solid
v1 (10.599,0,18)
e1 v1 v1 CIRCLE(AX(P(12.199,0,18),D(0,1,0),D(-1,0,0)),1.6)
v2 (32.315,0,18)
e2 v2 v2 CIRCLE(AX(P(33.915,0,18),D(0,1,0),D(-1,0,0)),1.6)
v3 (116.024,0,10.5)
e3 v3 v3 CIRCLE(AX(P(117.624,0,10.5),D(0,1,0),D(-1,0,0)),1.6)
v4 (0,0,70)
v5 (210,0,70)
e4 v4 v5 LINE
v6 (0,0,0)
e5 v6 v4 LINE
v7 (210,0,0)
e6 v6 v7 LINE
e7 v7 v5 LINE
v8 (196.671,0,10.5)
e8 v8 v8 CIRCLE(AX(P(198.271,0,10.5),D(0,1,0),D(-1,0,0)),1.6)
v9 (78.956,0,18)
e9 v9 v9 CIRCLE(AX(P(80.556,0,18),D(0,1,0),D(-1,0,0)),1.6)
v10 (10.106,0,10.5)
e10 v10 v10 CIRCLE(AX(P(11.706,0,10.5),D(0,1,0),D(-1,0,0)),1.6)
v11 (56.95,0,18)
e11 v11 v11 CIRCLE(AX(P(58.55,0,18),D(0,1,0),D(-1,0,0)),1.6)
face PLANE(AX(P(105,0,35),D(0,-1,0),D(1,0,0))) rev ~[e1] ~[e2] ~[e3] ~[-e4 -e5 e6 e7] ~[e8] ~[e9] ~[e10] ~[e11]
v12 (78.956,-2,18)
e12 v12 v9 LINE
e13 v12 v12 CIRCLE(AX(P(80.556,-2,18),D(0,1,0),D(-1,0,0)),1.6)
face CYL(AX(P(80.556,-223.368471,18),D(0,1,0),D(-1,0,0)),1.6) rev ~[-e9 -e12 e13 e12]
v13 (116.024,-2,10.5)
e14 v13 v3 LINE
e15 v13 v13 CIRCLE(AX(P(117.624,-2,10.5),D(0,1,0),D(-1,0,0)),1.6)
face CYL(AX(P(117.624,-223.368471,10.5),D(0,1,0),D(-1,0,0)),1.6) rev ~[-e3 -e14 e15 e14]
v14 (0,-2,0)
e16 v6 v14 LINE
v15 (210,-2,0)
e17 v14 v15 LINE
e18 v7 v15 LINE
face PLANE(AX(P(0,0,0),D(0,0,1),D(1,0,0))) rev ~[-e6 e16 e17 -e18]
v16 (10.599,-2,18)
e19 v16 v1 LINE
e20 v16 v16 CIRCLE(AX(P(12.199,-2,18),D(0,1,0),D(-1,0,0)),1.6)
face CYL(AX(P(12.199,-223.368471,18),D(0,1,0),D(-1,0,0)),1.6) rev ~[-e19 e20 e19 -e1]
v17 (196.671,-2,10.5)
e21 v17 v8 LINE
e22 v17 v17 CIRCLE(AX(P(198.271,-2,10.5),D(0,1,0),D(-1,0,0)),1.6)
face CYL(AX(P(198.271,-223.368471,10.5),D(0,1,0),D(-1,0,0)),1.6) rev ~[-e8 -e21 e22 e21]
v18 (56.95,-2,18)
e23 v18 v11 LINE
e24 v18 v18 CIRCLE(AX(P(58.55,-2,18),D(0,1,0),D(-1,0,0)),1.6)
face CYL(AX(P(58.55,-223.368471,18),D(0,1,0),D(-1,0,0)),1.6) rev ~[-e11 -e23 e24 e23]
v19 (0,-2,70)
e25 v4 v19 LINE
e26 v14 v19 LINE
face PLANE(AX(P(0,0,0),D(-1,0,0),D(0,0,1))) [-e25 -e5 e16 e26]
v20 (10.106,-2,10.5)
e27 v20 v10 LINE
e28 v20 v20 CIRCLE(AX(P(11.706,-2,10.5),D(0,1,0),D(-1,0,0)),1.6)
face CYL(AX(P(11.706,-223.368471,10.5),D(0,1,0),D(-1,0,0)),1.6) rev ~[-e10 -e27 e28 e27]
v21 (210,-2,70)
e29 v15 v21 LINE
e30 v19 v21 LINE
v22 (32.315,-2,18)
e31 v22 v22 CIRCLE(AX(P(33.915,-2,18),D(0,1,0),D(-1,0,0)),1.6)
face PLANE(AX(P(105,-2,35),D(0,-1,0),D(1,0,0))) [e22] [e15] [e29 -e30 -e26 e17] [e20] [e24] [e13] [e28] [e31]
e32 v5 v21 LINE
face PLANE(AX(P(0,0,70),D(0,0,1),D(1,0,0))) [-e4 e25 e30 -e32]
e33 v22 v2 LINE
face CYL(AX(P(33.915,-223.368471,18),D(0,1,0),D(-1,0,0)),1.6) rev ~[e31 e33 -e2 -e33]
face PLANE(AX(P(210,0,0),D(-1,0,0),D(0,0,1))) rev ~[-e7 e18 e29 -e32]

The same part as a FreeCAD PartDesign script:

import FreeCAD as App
import Part
import Sketcher


def add_polygon(sketch, points):
    """Adds a closed chain of lines whose ends are joined by coincident constraints."""
    first, n = sketch.GeometryCount, len(points)
    for a, b in zip(points, points[1:] + points[:1]):
        sketch.addGeometry(Part.LineSegment(App.Vector(*a, 0), App.Vector(*b, 0)), False)
    for i in range(n):
        sketch.addConstraint(Sketcher.Constraint("Coincident", first + i, 2, first + (i + 1) % n, 1))

doc = App.newDocument("Part")
body = doc.addObject("PartDesign::Body", "Body")

# Sketch on XZ plane
sketch1 = body.newObject("Sketcher::SketchObject", "Sketch")
sketch1.AttachmentSupport = (doc.getObject("XZ_Plane"), [""])
sketch1.MapMode = "FlatFace"
add_polygon(sketch1, [(0, 70), (0, 0), (210, 0), (210, 70)])  # lines 0-3
sketch1.addConstraint([
    Sketcher.Constraint("Vertical", 0),
    Sketcher.Constraint("Horizontal", 1),
    Sketcher.Constraint("Vertical", 2),
    Sketcher.Constraint("Horizontal", 3),
    Sketcher.Constraint("Coincident", 0, 2, -1, 1),
    Sketcher.Constraint("DistanceX", 1, 1, 1, 2, 210.0),
    Sketcher.Constraint("DistanceY", 0, 2, 0, 1, 70.0),
])
pad1 = body.newObject("PartDesign::Pad", "Pad")
pad1.Profile = sketch1
pad1.Length = 2

# Sketch on XZ plane
sketch2 = body.newObject("Sketcher::SketchObject", "Sketch001")
sketch2.AttachmentSupport = (doc.getObject("XZ_Plane"), [""])
sketch2.MapMode = "FlatFace"
sketch2.AttachmentOffset = App.Placement(App.Vector(0, 0, 2), App.Rotation())
sketch2.addGeometry([
    Part.Circle(App.Vector(12.199, 18, 0), App.Vector(0, 0, 1), 1.6),  # 0
    Part.Circle(App.Vector(11.706, 10.5, 0), App.Vector(0, 0, 1), 1.6),  # 1
    Part.Circle(App.Vector(33.915, 18, 0), App.Vector(0, 0, 1), 1.6),  # 2
    Part.Circle(App.Vector(58.55, 18, 0), App.Vector(0, 0, 1), 1.6),  # 3
    Part.Circle(App.Vector(80.556, 18, 0), App.Vector(0, 0, 1), 1.6),  # 4
    Part.Circle(App.Vector(117.624, 10.5, 0), App.Vector(0, 0, 1), 1.6),  # 5
    Part.Circle(App.Vector(198.271, 10.5, 0), App.Vector(0, 0, 1), 1.6),  # 6
], False)
sketch2.addConstraint([
    Sketcher.Constraint("Equal", 0, 1),
    Sketcher.Constraint("Equal", 1, 2),
    Sketcher.Constraint("Equal", 2, 3),
    Sketcher.Constraint("Equal", 3, 4),
    Sketcher.Constraint("Equal", 4, 5),
    Sketcher.Constraint("Equal", 5, 6),
    Sketcher.Constraint("Horizontal", 0, 3, 2, 3),
    Sketcher.Constraint("Horizontal", 2, 3, 3, 3),
    Sketcher.Constraint("Horizontal", 3, 3, 4, 3),
    Sketcher.Constraint("Horizontal", 1, 3, 5, 3),
    Sketcher.Constraint("Horizontal", 5, 3, 6, 3),
    Sketcher.Constraint("Diameter", 0, 3.2),
    Sketcher.Constraint("DistanceY", -1, 1, 0, 3, 18.0),
    Sketcher.Constraint("DistanceY", -1, 1, 1, 3, 10.5),
    Sketcher.Constraint("DistanceX", -1, 1, 3, 3, 58.55),
    Sketcher.Constraint("DistanceX", 1, 3, 4, 3, 68.85),
    Sketcher.Constraint("DistanceX", -1, 1, 0, 3, 12.199),
    Sketcher.Constraint("DistanceX", -1, 1, 1, 3, 11.706),
    Sketcher.Constraint("DistanceX", -1, 1, 2, 3, 33.915),
    Sketcher.Constraint("DistanceX", -1, 1, 5, 3, 117.624),
    Sketcher.Constraint("DistanceX", -1, 1, 6, 3, 198.271),
])
doc.recompute()
hole = body.newObject("PartDesign::Hole", "Hole")
hole.Profile = sketch2
hole.ThreadType = "None"
hole.Diameter = 3.2
hole.DepthType = "ThroughAll"

doc.recompute()
